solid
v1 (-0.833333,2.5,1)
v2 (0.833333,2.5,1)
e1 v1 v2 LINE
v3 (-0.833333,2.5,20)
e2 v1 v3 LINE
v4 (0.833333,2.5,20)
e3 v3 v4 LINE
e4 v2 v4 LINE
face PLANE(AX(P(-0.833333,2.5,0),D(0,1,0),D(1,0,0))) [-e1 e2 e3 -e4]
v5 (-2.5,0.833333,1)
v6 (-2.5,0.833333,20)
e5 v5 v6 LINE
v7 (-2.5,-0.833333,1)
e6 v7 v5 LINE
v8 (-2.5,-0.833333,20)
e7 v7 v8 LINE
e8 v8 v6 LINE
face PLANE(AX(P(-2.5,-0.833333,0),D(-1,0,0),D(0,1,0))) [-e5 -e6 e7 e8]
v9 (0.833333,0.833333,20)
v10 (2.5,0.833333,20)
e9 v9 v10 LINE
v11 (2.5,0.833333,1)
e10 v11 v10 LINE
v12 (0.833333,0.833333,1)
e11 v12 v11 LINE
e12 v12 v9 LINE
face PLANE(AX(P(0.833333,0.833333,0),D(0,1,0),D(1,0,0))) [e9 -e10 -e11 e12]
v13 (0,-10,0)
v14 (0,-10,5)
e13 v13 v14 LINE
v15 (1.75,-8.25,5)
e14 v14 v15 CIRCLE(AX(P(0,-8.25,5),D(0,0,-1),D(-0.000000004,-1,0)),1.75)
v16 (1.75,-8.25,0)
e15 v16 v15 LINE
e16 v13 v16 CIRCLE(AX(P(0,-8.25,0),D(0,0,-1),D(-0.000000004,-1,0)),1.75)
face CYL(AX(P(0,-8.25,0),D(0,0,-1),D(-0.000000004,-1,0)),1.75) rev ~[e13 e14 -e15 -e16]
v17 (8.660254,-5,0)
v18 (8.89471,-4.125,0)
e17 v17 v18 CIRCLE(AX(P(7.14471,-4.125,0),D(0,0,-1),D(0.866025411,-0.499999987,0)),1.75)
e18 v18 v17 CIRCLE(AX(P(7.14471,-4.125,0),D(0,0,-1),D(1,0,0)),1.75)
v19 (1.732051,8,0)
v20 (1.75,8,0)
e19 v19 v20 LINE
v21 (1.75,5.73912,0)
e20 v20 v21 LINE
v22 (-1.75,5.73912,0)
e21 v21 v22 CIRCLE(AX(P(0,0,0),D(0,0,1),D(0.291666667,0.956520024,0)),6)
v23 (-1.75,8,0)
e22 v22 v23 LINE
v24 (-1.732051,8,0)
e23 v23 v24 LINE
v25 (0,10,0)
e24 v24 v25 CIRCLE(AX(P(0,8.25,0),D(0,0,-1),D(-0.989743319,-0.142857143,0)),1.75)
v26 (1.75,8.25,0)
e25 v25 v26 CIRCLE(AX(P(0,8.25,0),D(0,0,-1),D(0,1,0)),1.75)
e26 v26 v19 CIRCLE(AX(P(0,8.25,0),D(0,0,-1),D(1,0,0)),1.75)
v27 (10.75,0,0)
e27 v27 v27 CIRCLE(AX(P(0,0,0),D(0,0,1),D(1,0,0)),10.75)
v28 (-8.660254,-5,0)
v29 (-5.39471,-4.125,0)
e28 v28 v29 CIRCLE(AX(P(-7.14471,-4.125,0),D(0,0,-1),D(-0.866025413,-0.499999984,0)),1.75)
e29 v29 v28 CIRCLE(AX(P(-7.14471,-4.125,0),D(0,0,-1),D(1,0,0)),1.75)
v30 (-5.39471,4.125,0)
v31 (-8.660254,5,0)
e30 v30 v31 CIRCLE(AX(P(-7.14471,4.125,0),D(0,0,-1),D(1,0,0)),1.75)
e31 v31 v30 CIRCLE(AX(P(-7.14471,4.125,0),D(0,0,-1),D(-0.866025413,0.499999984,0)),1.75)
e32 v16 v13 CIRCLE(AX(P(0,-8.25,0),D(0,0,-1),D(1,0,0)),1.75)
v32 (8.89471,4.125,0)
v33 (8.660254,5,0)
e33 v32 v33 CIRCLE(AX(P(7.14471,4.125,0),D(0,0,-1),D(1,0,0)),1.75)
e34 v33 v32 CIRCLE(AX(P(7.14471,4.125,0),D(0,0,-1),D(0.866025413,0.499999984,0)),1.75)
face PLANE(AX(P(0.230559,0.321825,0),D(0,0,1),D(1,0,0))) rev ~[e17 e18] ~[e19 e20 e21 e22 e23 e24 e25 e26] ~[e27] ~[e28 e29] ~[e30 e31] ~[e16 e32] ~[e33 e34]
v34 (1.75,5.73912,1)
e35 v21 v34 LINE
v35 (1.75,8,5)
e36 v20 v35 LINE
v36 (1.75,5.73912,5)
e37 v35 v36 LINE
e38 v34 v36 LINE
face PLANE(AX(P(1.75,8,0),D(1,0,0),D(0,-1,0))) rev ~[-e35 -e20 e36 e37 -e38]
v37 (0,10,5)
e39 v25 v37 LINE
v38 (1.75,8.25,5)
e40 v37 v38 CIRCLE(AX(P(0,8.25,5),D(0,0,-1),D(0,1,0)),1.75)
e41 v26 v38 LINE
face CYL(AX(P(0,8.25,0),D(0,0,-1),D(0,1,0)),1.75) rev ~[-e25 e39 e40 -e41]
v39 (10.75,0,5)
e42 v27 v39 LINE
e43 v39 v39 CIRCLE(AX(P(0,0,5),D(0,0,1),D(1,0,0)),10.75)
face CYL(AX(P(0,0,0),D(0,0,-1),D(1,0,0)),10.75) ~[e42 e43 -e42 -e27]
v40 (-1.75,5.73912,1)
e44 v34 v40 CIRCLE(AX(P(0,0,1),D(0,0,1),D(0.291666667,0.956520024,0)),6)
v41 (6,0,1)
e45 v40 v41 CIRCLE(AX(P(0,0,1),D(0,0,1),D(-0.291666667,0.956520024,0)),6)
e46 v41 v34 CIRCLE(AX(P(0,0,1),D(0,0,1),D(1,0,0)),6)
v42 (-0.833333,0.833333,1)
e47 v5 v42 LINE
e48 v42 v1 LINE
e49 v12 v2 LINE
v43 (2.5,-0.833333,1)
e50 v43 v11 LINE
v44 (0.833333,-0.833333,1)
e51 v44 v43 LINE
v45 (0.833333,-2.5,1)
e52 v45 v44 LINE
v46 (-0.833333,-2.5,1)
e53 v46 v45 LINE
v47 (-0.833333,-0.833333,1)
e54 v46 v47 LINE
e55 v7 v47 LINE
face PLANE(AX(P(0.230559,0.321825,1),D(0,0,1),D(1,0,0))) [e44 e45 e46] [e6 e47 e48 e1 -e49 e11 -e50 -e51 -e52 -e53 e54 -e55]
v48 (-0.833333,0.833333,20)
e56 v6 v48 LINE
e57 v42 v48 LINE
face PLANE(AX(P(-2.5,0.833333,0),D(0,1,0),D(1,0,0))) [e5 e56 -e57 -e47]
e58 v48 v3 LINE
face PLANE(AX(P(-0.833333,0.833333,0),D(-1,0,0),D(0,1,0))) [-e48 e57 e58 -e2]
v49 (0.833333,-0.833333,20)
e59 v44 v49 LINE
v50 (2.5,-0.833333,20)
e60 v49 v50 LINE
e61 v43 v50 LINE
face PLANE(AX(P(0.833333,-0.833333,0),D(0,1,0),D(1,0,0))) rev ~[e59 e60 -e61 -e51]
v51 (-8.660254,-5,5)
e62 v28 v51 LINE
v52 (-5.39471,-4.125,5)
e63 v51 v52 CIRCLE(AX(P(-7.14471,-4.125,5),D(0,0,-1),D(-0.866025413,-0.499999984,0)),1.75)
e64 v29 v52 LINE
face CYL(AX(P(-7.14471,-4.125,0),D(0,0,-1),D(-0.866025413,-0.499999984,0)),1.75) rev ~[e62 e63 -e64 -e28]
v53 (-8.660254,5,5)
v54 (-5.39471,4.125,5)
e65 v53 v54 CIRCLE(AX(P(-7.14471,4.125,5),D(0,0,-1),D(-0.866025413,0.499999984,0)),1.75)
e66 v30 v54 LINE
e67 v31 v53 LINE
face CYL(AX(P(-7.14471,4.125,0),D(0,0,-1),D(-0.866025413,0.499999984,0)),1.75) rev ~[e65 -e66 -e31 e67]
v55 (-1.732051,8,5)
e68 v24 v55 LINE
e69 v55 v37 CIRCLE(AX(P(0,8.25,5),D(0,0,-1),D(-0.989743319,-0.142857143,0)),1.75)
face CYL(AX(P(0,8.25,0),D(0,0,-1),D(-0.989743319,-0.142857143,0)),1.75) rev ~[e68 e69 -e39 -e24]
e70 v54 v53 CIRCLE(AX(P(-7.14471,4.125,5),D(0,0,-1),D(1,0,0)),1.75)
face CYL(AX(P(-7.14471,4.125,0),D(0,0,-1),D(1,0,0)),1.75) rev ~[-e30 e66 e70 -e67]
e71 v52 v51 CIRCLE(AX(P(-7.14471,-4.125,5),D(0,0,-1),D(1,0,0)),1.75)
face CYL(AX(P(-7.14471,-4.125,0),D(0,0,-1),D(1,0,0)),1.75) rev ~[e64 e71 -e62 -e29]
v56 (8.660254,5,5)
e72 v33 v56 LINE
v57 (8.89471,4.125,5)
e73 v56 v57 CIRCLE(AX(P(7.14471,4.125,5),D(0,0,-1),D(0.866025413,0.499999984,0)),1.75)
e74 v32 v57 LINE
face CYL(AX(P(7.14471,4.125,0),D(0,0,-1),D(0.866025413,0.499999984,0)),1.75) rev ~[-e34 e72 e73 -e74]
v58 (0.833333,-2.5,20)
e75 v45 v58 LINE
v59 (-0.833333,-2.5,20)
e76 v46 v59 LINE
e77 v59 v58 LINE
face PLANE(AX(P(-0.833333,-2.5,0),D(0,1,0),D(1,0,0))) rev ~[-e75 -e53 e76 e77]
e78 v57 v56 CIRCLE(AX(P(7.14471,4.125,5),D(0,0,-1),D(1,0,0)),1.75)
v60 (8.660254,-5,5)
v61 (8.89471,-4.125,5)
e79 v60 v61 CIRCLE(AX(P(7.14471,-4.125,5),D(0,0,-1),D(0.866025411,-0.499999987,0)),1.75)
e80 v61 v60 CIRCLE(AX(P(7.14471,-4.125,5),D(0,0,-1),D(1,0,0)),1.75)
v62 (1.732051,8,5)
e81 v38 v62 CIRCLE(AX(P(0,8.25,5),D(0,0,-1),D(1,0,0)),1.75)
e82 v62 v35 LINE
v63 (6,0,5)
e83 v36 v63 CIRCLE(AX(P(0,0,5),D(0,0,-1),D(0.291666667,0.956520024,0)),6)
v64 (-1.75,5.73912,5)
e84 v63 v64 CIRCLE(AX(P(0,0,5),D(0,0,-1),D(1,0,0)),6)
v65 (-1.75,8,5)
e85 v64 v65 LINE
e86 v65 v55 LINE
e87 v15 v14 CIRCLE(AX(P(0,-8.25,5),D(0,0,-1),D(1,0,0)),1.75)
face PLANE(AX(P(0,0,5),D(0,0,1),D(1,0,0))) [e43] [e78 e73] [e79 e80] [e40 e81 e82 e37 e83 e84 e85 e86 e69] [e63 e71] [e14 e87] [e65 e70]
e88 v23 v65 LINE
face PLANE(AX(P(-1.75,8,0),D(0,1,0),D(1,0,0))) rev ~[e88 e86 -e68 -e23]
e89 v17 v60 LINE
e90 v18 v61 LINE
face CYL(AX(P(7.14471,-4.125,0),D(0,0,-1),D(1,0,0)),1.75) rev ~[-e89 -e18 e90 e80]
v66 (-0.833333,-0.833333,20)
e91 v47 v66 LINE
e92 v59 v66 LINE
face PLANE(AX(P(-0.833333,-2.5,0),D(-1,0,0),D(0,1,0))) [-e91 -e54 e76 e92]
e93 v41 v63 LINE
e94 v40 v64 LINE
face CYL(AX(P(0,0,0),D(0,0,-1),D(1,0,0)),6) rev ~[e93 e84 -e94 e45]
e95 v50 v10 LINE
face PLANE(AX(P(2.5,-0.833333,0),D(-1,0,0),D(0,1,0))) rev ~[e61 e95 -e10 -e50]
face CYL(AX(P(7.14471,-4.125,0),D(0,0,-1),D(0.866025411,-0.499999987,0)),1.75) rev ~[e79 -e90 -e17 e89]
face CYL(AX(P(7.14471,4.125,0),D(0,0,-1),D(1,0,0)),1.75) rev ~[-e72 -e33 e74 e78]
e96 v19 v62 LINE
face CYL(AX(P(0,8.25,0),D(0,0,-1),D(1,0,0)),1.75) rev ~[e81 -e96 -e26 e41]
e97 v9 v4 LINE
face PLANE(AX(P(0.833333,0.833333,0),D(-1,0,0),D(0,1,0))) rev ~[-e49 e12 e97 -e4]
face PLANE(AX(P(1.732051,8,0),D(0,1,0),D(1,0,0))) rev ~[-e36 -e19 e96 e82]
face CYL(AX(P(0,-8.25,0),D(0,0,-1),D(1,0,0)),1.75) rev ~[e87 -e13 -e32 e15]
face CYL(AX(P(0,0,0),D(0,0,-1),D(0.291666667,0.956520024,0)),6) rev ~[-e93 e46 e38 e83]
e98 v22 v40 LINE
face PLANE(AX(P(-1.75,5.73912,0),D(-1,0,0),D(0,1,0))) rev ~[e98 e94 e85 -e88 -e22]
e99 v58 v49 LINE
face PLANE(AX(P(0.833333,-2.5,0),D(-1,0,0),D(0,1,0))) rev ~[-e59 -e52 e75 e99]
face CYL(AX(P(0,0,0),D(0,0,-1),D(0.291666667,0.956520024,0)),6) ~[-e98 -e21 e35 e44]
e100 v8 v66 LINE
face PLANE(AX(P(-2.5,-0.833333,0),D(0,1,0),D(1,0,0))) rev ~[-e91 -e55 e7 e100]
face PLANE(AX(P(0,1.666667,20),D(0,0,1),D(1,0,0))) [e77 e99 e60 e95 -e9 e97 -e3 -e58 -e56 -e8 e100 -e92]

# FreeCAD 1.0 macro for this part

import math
import FreeCAD as App
import Part
import Sketcher

doc = App.newDocument("Part")
body = doc.addObject("PartDesign::Body", "Body")

# Sketch on XY plane
sketch1 = doc.addObject("Sketcher::SketchObject", "Sketch")
body.addObject(sketch1)
sketch1.AttachmentSupport = (doc.XY_Plane, [""])
sketch1.MapMode = "FlatFace"
sketch1.addGeometry(Part.LineSegment(App.Vector(-0.833333, 2.5, 0), App.Vector(-0.833333, 0.833333, 0)), False)
sketch1.addGeometry(Part.LineSegment(App.Vector(-0.833333, 0.833333, 0), App.Vector(-2.5, 0.833333, 0)), False)
sketch1.addGeometry(Part.LineSegment(App.Vector(-2.5, 0.833333, 0), App.Vector(-2.5, -0.833333, 0)), False)
sketch1.addGeometry(Part.LineSegment(App.Vector(-2.5, -0.833333, 0), App.Vector(-0.833333, -0.833333, 0)), False)
sketch1.addGeometry(Part.LineSegment(App.Vector(-0.833333, -0.833333, 0), App.Vector(-0.833333, -2.5, 0)), False)
sketch1.addGeometry(Part.LineSegment(App.Vector(-0.833333, -2.5, 0), App.Vector(0.833333, -2.5, 0)), False)
sketch1.addGeometry(Part.LineSegment(App.Vector(0.833333, -2.5, 0), App.Vector(0.833333, -0.833333, 0)), False)
sketch1.addGeometry(Part.LineSegment(App.Vector(0.833333, -0.833333, 0), App.Vector(2.5, -0.833333, 0)), False)
sketch1.addGeometry(Part.LineSegment(App.Vector(2.5, -0.833333, 0), App.Vector(2.5, 0.833333, 0)), False)
sketch1.addGeometry(Part.LineSegment(App.Vector(2.5, 0.833333, 0), App.Vector(0.833333, 0.833333, 0)), False)
sketch1.addGeometry(Part.LineSegment(App.Vector(0.833333, 0.833333, 0), App.Vector(0.833333, 2.5, 0)), False)
sketch1.addGeometry(Part.LineSegment(App.Vector(0.833333, 2.5, 0), App.Vector(-0.833333, 2.5, 0)), False)
sketch1.addConstraint(Sketcher.Constraint("Coincident", 0, 2, 1, 1))
sketch1.addConstraint(Sketcher.Constraint("Coincident", 1, 2, 2, 1))
sketch1.addConstraint(Sketcher.Constraint("Coincident", 2, 2, 3, 1))
sketch1.addConstraint(Sketcher.Constraint("Coincident", 3, 2, 4, 1))
sketch1.addConstraint(Sketcher.Constraint("Coincident", 4, 2, 5, 1))
sketch1.addConstraint(Sketcher.Constraint("Coincident", 5, 2, 6, 1))
sketch1.addConstraint(Sketcher.Constraint("Coincident", 6, 2, 7, 1))
sketch1.addConstraint(Sketcher.Constraint("Coincident", 7, 2, 8, 1))
sketch1.addConstraint(Sketcher.Constraint("Coincident", 8, 2, 9, 1))
sketch1.addConstraint(Sketcher.Constraint("Coincident", 9, 2, 10, 1))
sketch1.addConstraint(Sketcher.Constraint("Coincident", 10, 2, 11, 1))
sketch1.addConstraint(Sketcher.Constraint("Coincident", 11, 2, 0, 1))
sketch1.addConstraint(Sketcher.Constraint("Vertical", 0))
sketch1.addConstraint(Sketcher.Constraint("Horizontal", 1))
sketch1.addConstraint(Sketcher.Constraint("Vertical", 2))
sketch1.addConstraint(Sketcher.Constraint("Horizontal", 3))
sketch1.addConstraint(Sketcher.Constraint("Vertical", 4))
sketch1.addConstraint(Sketcher.Constraint("Horizontal", 5))
sketch1.addConstraint(Sketcher.Constraint("Vertical", 6))
sketch1.addConstraint(Sketcher.Constraint("Horizontal", 7))
sketch1.addConstraint(Sketcher.Constraint("Vertical", 8))
sketch1.addConstraint(Sketcher.Constraint("Horizontal", 9))
sketch1.addConstraint(Sketcher.Constraint("Vertical", 10))
sketch1.addConstraint(Sketcher.Constraint("Horizontal", 11))
sketch1.addConstraint(Sketcher.Constraint("Symmetric", 0, 2, 6, 2, -1, 1))
sketch1.addConstraint(Sketcher.Constraint("Symmetric", 2, 2, 8, 2, -1, 1))
sketch1.addConstraint(Sketcher.Constraint("Symmetric", 4, 2, 10, 2, -1, 1))
sketch1.addConstraint(Sketcher.Constraint("Symmetric", 3, 2, 6, 2, -2))
sketch1.addConstraint(Sketcher.Constraint("Equal", 3, 5))
sketch1.addConstraint(Sketcher.Constraint("Equal", 11, 0))
sketch1.addConstraint(Sketcher.Constraint("Equal", 0, 2))
sketch1.addConstraint(Sketcher.Constraint("DistanceX", 1, 2, -1, 1, 2.5))
pad1 = doc.addObject("PartDesign::Pad", "Pad")
body.addObject(pad1)
pad1.Profile = sketch1
pad1.Length = 20
body2 = doc.addObject("PartDesign::Body", "Body001")

# Sketch on XY plane
sketch2 = doc.addObject("Sketcher::SketchObject", "Sketch001")
body2.addObject(sketch2)
sketch2.AttachmentSupport = (doc.getObject("XY_Plane001"), [""])
sketch2.MapMode = "FlatFace"
sketch2.addGeometry(Part.Circle(App.Vector(0, 0, 0), App.Vector(0, 0, 1), 10.75), False)
sketch2.addGeometry(Part.ArcOfCircle(Part.Circle(App.Vector(0, -8.25, 0), App.Vector(0, 0, 1), 1.75), math.radians(0), math.radians(270)), False)
sketch2.addGeometry(Part.ArcOfCircle(Part.Circle(App.Vector(0, -8.25, 0), App.Vector(0, 0, 1), 1.75), math.radians(-90), math.radians(0)), False)
sketch2.addGeometry(Part.ArcOfCircle(Part.Circle(App.Vector(-7.14471, -4.125, 0), App.Vector(0, 0, 1), 1.75), math.radians(0), math.radians(209.999999)), False)
sketch2.addGeometry(Part.ArcOfCircle(Part.Circle(App.Vector(-7.14471, -4.125, 0), App.Vector(0, 0, 1), 1.75), math.radians(-150.000001), math.radians(0)), False)
sketch2.addGeometry(Part.ArcOfCircle(Part.Circle(App.Vector(7.14471, -4.125, 0), App.Vector(0, 0, 1), 1.75), math.radians(0), math.radians(330.000001)), False)
sketch2.addGeometry(Part.ArcOfCircle(Part.Circle(App.Vector(7.14471, -4.125, 0), App.Vector(0, 0, 1), 1.75), math.radians(-29.999999), math.radians(0)), False)
sketch2.addGeometry(Part.ArcOfCircle(Part.Circle(App.Vector(-7.14471, 4.125, 0), App.Vector(0, 0, 1), 1.75), math.radians(0), math.radians(150.000001)), False)
sketch2.addGeometry(Part.ArcOfCircle(Part.Circle(App.Vector(-7.14471, 4.125, 0), App.Vector(0, 0, 1), 1.75), math.radians(150.000001), math.radians(360)), False)
sketch2.addGeometry(Part.LineSegment(App.Vector(1.75, 8, 0), App.Vector(1.75, 5.73912, 0)), False)
sketch2.addGeometry(Part.ArcOfCircle(Part.Circle(App.Vector(0, 0, 0), App.Vector(0, 0, 1), 6), math.radians(0), math.radians(73.042237)), False)
sketch2.addGeometry(Part.ArcOfCircle(Part.Circle(App.Vector(0, 0, 0), App.Vector(0, 0, 1), 6), math.radians(106.957763), math.radians(360)), False)
sketch2.addGeometry(Part.LineSegment(App.Vector(-1.75, 5.73912, 0), App.Vector(-1.75, 8, 0)), False)
sketch2.addGeometry(Part.LineSegment(App.Vector(-1.75, 8, 0), App.Vector(-1.732051, 8, 0)), False)
sketch2.addGeometry(Part.ArcOfCircle(Part.Circle(App.Vector(0, 8.25, 0), App.Vector(0, 0, 1), 1.75), math.radians(90), math.radians(188.213211)), False)
sketch2.addGeometry(Part.ArcOfCircle(Part.Circle(App.Vector(0, 8.25, 0), App.Vector(0, 0, 1), 1.75), math.radians(0), math.radians(90)), False)
sketch2.addGeometry(Part.ArcOfCircle(Part.Circle(App.Vector(0, 8.25, 0), App.Vector(0, 0, 1), 1.75), math.radians(-8.213211), math.radians(0)), False)
sketch2.addGeometry(Part.LineSegment(App.Vector(1.732051, 8, 0), App.Vector(1.75, 8, 0)), False)
sketch2.addGeometry(Part.ArcOfCircle(Part.Circle(App.Vector(7.14471, 4.125, 0), App.Vector(0, 0, 1), 1.75), math.radians(0), math.radians(29.999999)), False)
sketch2.addGeometry(Part.ArcOfCircle(Part.Circle(App.Vector(7.14471, 4.125, 0), App.Vector(0, 0, 1), 1.75), math.radians(29.999999), math.radians(360)), False)
sketch2.addConstraint(Sketcher.Constraint("Tangent", 1, 1, 2, 2))
sketch2.addConstraint(Sketcher.Constraint("Coincident", 2, 1, 1, 2))
sketch2.addConstraint(Sketcher.Constraint("Tangent", 3, 1, 4, 2))
sketch2.addConstraint(Sketcher.Constraint("Coincident", 4, 1, 3, 2))
sketch2.addConstraint(Sketcher.Constraint("Tangent", 5, 1, 6, 2))
sketch2.addConstraint(Sketcher.Constraint("Coincident", 6, 1, 5, 2))
sketch2.addConstraint(Sketcher.Constraint("Tangent", 7, 1, 8, 2))
sketch2.addConstraint(Sketcher.Constraint("Coincident", 8, 1, 7, 2))
sketch2.addConstraint(Sketcher.Constraint("Coincident", 9, 2, 10, 2))
sketch2.addConstraint(Sketcher.Constraint("Tangent", 10, 1, 11, 2))
sketch2.addConstraint(Sketcher.Constraint("Coincident", 11, 1, 12, 1))
sketch2.addConstraint(Sketcher.Constraint("Coincident", 12, 2, 13, 1))
sketch2.addConstraint(Sketcher.Constraint("Coincident", 13, 2, 14, 2))
sketch2.addConstraint(Sketcher.Constraint("Tangent", 14, 1, 15, 2))
sketch2.addConstraint(Sketcher.Constraint("Tangent", 15, 1, 16, 2))
sketch2.addConstraint(Sketcher.Constraint("Coincident", 16, 1, 17, 1))
sketch2.addConstraint(Sketcher.Constraint("Coincident", 17, 2, 9, 1))
sketch2.addConstraint(Sketcher.Constraint("Tangent", 18, 1, 19, 2))
sketch2.addConstraint(Sketcher.Constraint("Coincident", 19, 1, 18, 2))
sketch2.addConstraint(Sketcher.Constraint("Vertical", 9))
sketch2.addConstraint(Sketcher.Constraint("Vertical", 12))
sketch2.addConstraint(Sketcher.Constraint("Horizontal", 13))
sketch2.addConstraint(Sketcher.Constraint("Horizontal", 17))
sketch2.addConstraint(Sketcher.Constraint("Coincident", 0, 3, -1, 1))
sketch2.addConstraint(Sketcher.Constraint("Coincident", 10, 3, -1, 1))
sketch2.addConstraint(Sketcher.Constraint("Coincident", 16, 3, 14, 3))
sketch2.addConstraint(Sketcher.Constraint("Equal", 2, 3))
sketch2.addConstraint(Sketcher.Constraint("Equal", 4, 5))
sketch2.addConstraint(Sketcher.Constraint("Equal", 6, 7))
sketch2.addConstraint(Sketcher.Constraint("Equal", 10, 11))
sketch2.addConstraint(Sketcher.Constraint("Equal", 8, 14))
sketch2.addConstraint(Sketcher.Constraint("Equal", 16, 18))
sketch2.addConstraint(Sketcher.Constraint("Symmetric", 5, 3, 7, 3, -1, 1))
sketch2.addConstraint(Sketcher.Constraint("Symmetric", 1, 3, 14, 3, -1, 1))
sketch2.addConstraint(Sketcher.Constraint("Symmetric", 3, 3, 18, 3, -1, 1))
sketch2.addConstraint(Sketcher.Constraint("Symmetric", 3, 3, 5, 3, -2))
sketch2.addConstraint(Sketcher.Constraint("Symmetric", 13, 2, 16, 1, -2))
sketch2.addConstraint(Sketcher.Constraint("PointOnObject", 2, 1, -2))
sketch2.addConstraint(Sketcher.Constraint("PointOnObject", 10, 1, -1))
sketch2.addConstraint(Sketcher.Constraint("PointOnObject", 14, 1, -2))
sketch2.addConstraint(Sketcher.Constraint("Horizontal", 2, 3, 1, 1))
sketch2.addConstraint(Sketcher.Constraint("Horizontal", 6, 3, 3, 1))
sketch2.addConstraint(Sketcher.Constraint("Horizontal", 3, 1, 5, 1))
sketch2.addConstraint(Sketcher.Constraint("Horizontal", 4, 1, 6, 1))
sketch2.addConstraint(Sketcher.Constraint("Horizontal", 19, 3, 7, 1))
sketch2.addConstraint(Sketcher.Constraint("Horizontal", 9, 2, 11, 1))
sketch2.addConstraint(Sketcher.Constraint("Horizontal", 16, 3, 15, 1))
sketch2.addConstraint(Sketcher.Constraint("Horizontal", 7, 1, 18, 1))
sketch2.addConstraint(Sketcher.Constraint("Horizontal", 8, 1, 19, 1))
sketch2.addConstraint(Sketcher.Constraint("Vertical", 4, 1, 8, 1))
sketch2.addConstraint(Sketcher.Constraint("Vertical", 1, 1, 9, 2))
sketch2.addConstraint(Sketcher.Constraint("Radius", 10, 6.0))
sketch2.addConstraint(Sketcher.Constraint("Diameter", 0, 21.5))
sketch2.addConstraint(Sketcher.Constraint("Radius", 1, 1.75))
sketch2.addConstraint(Sketcher.Constraint("DistanceY", 2, 1, -1, 1, 10.0))
sketch2.addConstraint(Sketcher.Constraint("DistanceY", 4, 1, -1, 1, 5.0))
sketch2.addConstraint(Sketcher.Constraint("DistanceY", -1, 1, 12, 2, 8.0))
sketch2.addConstraint(Sketcher.Constraint("DistanceY", 3, 3, 7, 3, 8.25))
sketch2.addConstraint(Sketcher.Constraint("DistanceX", 3, 3, -1, 1, 7.14471))
pad2 = doc.addObject("PartDesign::Pad", "Pad001")
body2.addObject(pad2)
pad2.Profile = sketch2
pad2.Length = 5
body.AllowCompound = True
doc.recompute()

boolean = doc.addObject("PartDesign::Boolean", "Boolean")
body.addObject(boolean)
boolean.Type = "Fuse"
boolean.addObjects([body2])

# Sketch on XY plane
sketch3 = doc.addObject("Sketcher::SketchObject", "Sketch002")
body.addObject(sketch3)
sketch3.AttachmentSupport = (doc.XY_Plane, [""])
sketch3.MapMode = "FlatFace"
sketch3.addGeometry(Part.ArcOfCircle(Part.Circle(App.Vector(0, 0, 0), App.Vector(0, 0, 1), 6), math.radians(106.957763), math.radians(360)), False)
sketch3.addGeometry(Part.ArcOfCircle(Part.Circle(App.Vector(0, 0, 0), App.Vector(0, 0, 1), 6), math.radians(0), math.radians(73.042237)), False)
sketch3.addGeometry(Part.ArcOfCircle(Part.Circle(App.Vector(0, 0, 0), App.Vector(0, 0, 1), 6), math.radians(73.042237), math.radians(106.957763)), False)
sketch3.addConstraint(Sketcher.Constraint("Tangent", 0, 2, 1, 1))
sketch3.addConstraint(Sketcher.Constraint("Tangent", 1, 2, 2, 1))
sketch3.addConstraint(Sketcher.Constraint("Tangent", 2, 2, 0, 1))
sketch3.addConstraint(Sketcher.Constraint("Coincident", 0, 3, -1, 1))
sketch3.addConstraint(Sketcher.Constraint("PointOnObject", 0, 2, -1))
sketch3.addConstraint(Sketcher.Constraint("Horizontal", 1, 2, 2, 2))
sketch3.addConstraint(Sketcher.Constraint("Radius", 0, 6.0))
sketch3.addConstraint(Sketcher.Constraint("DistanceX", 2, 2, 1, 2, 3.5))
pad3 = doc.addObject("PartDesign::Pad", "Pad002")
body.addObject(pad3)
pad3.Profile = sketch3
pad3.Length = 1

doc.recompute()
